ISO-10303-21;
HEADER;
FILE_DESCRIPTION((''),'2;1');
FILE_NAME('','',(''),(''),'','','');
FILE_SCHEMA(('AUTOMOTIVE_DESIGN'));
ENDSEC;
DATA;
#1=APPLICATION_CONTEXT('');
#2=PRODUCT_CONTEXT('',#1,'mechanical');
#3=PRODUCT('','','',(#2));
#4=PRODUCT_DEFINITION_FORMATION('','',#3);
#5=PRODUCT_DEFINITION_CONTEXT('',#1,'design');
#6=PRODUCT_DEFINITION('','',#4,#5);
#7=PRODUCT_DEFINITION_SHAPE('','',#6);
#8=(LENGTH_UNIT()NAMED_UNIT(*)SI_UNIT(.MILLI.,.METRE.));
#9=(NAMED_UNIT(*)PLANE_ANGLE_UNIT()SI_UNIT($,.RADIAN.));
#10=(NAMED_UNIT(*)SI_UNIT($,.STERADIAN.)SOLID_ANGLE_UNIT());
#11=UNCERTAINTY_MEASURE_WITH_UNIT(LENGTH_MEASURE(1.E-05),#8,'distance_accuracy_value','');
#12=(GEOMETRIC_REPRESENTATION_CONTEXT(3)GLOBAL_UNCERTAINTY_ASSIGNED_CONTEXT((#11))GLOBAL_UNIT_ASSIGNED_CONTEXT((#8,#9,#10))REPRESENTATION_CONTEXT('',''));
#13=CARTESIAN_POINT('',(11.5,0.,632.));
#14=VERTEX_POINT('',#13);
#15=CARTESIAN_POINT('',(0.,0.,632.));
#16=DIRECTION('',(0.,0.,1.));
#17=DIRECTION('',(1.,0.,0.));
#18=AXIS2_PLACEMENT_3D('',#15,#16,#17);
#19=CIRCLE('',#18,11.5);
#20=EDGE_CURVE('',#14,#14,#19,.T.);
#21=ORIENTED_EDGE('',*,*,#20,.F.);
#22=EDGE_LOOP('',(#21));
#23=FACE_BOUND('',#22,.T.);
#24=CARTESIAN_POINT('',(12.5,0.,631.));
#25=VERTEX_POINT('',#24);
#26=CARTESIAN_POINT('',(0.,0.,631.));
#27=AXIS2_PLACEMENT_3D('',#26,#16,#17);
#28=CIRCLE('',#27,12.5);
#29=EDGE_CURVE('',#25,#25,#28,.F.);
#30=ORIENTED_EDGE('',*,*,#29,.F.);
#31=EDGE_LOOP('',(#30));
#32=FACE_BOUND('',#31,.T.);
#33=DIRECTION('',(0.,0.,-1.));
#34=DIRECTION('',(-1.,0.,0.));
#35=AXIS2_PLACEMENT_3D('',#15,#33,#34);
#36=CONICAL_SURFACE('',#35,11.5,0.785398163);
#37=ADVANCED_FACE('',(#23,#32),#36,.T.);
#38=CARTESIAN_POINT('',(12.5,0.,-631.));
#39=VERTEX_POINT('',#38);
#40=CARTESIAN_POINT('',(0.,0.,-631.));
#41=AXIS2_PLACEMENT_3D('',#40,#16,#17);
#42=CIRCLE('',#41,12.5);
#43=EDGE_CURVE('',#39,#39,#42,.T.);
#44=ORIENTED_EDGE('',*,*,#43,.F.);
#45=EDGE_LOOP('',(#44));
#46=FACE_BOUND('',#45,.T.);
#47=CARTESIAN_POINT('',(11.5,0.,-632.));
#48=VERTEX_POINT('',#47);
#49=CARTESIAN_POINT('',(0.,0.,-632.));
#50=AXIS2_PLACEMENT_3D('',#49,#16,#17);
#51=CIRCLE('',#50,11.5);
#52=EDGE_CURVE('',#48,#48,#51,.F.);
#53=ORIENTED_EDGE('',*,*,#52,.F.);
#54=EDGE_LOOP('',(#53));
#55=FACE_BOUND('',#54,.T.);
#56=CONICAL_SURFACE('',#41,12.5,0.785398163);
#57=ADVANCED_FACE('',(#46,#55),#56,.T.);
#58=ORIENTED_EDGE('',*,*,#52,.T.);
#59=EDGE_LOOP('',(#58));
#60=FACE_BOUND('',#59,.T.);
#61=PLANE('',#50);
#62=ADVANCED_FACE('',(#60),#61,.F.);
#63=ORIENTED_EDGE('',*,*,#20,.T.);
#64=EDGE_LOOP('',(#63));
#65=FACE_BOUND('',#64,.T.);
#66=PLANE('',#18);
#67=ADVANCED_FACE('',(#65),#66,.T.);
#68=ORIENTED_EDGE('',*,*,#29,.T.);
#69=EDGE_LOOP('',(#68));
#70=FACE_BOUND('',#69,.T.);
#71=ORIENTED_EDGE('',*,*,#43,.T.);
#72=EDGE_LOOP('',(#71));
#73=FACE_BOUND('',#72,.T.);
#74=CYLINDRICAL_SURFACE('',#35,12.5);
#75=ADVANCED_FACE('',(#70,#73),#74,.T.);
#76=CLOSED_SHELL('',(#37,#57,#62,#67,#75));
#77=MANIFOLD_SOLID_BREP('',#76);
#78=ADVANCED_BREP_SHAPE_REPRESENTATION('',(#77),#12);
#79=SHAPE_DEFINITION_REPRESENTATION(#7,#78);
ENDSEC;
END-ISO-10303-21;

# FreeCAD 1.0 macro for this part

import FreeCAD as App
import Part
import Sketcher


def edges_at(feature, points):
    """Names of the edges that pass closest to the given points."""
    edges = feature.Shape.Edges
    near = lambda p: min(range(len(edges)), key=lambda i: edges[i].distToShape(Part.Vertex(*p))[0])
    return sorted({f"Edge{near(p) + 1}" for p in points})

doc = App.newDocument("Part")
body = doc.addObject("PartDesign::Body", "Body")

# Sketch on XY plane
sketch1 = body.newObject("Sketcher::SketchObject", "Sketch")
sketch1.AttachmentSupport = (doc.getObject("XY_Plane"), [""])
sketch1.MapMode = "FlatFace"
sketch1.addGeometry(Part.Circle(App.Vector(0, 0, 0), App.Vector(0, 0, 1), 12), False)
sketch1.addConstraint(Sketcher.Constraint("Coincident", 0, 3, -1, 1))
sketch1.addConstraint(Sketcher.Constraint("Diameter", 0, 25.0))
pad1 = body.newObject("PartDesign::Pad", "Pad")
pad1.Profile = sketch1
pad1.Length = 1264
pad1.Midplane = True
doc.recompute()

chamfer = body.newObject("PartDesign::Chamfer", "Chamfer")
chamfer.Base = (pad1, edges_at(pad1, [(-12.5, 0, -632), (-12.5, 0, 632)]))
chamfer.Size = 1

doc.recompute()
